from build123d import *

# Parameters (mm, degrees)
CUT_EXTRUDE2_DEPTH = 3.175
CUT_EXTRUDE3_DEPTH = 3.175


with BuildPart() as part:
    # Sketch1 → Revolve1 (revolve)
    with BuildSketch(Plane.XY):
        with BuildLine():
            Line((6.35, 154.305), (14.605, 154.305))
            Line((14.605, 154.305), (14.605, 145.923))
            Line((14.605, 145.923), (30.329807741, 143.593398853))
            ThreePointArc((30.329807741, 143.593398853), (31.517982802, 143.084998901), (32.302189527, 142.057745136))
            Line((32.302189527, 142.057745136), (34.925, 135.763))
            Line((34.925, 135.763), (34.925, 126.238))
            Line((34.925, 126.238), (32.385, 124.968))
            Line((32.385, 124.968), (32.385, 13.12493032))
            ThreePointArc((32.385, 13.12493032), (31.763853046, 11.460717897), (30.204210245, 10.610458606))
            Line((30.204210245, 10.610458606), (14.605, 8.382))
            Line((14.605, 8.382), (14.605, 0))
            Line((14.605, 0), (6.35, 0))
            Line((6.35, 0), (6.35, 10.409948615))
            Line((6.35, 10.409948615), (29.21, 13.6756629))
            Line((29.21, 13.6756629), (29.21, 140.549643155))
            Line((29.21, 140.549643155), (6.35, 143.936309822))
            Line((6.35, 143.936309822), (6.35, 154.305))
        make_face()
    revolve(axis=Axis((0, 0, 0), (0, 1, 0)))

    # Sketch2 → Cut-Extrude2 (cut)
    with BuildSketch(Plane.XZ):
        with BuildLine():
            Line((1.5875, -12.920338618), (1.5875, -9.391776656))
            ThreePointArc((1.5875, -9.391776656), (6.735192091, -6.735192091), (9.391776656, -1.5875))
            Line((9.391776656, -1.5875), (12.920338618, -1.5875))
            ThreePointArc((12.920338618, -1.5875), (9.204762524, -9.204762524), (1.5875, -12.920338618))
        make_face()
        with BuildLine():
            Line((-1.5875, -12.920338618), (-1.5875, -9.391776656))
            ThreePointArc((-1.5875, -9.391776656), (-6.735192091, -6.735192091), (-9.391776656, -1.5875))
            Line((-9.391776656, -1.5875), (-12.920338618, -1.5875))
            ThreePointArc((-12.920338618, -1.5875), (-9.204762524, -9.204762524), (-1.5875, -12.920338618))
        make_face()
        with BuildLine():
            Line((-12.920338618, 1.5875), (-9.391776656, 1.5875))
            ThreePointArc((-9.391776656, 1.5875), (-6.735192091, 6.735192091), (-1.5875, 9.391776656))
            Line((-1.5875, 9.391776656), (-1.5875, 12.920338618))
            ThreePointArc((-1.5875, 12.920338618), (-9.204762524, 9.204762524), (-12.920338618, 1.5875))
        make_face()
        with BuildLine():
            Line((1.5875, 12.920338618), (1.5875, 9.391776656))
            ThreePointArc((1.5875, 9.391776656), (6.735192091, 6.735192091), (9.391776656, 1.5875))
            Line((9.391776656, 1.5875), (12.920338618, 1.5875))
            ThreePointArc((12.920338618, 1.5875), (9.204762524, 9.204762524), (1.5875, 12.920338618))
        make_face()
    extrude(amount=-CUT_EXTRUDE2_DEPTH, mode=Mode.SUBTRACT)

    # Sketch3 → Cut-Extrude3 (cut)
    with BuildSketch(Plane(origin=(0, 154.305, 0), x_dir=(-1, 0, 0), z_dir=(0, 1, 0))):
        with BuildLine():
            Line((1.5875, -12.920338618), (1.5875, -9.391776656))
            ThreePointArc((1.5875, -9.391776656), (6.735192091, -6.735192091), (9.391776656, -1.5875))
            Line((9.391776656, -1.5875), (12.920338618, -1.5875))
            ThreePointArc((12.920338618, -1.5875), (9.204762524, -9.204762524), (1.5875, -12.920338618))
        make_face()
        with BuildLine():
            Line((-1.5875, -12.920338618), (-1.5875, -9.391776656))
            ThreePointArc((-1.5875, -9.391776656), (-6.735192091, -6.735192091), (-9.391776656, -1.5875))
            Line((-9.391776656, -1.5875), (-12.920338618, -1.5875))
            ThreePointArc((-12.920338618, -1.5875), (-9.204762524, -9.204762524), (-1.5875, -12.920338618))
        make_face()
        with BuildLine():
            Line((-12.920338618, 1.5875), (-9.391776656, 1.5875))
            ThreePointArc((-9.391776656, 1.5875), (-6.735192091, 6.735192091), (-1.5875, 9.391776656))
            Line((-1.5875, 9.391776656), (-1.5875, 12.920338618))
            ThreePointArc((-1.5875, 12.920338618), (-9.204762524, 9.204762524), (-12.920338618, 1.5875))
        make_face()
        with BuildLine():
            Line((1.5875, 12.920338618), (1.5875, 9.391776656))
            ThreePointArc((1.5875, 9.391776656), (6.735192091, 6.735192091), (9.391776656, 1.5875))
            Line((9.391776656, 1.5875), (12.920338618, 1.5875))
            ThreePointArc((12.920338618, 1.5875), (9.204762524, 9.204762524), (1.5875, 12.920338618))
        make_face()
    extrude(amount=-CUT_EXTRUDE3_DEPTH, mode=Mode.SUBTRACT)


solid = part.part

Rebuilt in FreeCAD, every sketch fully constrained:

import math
import FreeCAD as App
import Part
import Sketcher
Q = App.Units.Quantity

doc = App.newDocument("Part")
body = doc.addObject("PartDesign::Body", "Body")

# Sketch on XY plane
sketch1 = body.newObject("Sketcher::SketchObject", "Sketch")
sketch1.AttachmentSupport = (doc.getObject("XY_Plane"), [""])
sketch1.MapMode = "FlatFace"
sketch1.addGeometry(Part.LineSegment(App.Vector(14.605, 154.305, 0), App.Vector(6.35, 154.305, 0)), False)
sketch1.addGeometry(Part.LineSegment(App.Vector(6.35, 154.305, 0), App.Vector(6.35, 143.93631, 0)), False)
sketch1.addGeometry(Part.LineSegment(App.Vector(6.35, 143.93631, 0), App.Vector(29.21, 140.549643, 0)), False)
sketch1.addGeometry(Part.LineSegment(App.Vector(29.21, 140.549643, 0), App.Vector(29.21, 13.675663, 0)), False)
sketch1.addGeometry(Part.LineSegment(App.Vector(29.21, 13.675663, 0), App.Vector(6.35, 10.409949, 0)), False)
sketch1.addGeometry(Part.LineSegment(App.Vector(6.35, 10.409949, 0), App.Vector(6.35, 0, 0)), False)
sketch1.addGeometry(Part.LineSegment(App.Vector(6.35, 0, 0), App.Vector(14.605, 0, 0)), False)
sketch1.addGeometry(Part.LineSegment(App.Vector(14.605, 0, 0), App.Vector(14.605, 8.382, 0)), False)
sketch1.addGeometry(Part.LineSegment(App.Vector(14.605, 8.382, 0), App.Vector(30.20421, 10.610459, 0)), False)
sketch1.addGeometry(Part.ArcOfCircle(Part.Circle(App.Vector(29.845, 13.12493, 0), App.Vector(0, 0, 1), 2.54), math.radians(-81.869898), math.radians(0)), False)
sketch1.addGeometry(Part.LineSegment(App.Vector(32.385, 13.12493, 0), App.Vector(32.385, 124.968, 0)), False)
sketch1.addGeometry(Part.LineSegment(App.Vector(32.385, 124.968, 0), App.Vector(34.925, 126.238, 0)), False)
sketch1.addGeometry(Part.LineSegment(App.Vector(34.925, 126.238, 0), App.Vector(34.925, 135.763, 0)), False)
sketch1.addGeometry(Part.LineSegment(App.Vector(34.925, 135.763, 0), App.Vector(32.30219, 142.057745, 0)), False)
sketch1.addGeometry(Part.ArcOfCircle(Part.Circle(App.Vector(29.957574, 141.080822, 0), App.Vector(0, 0, 1), 2.54), math.radians(22.619865), math.radians(81.573031)), False)
sketch1.addGeometry(Part.LineSegment(App.Vector(30.329808, 143.593399, 0), App.Vector(14.605, 145.923, 0)), False)
sketch1.addGeometry(Part.LineSegment(App.Vector(14.605, 145.923, 0), App.Vector(14.605, 154.305, 0)), False)
sketch1.addConstraint(Sketcher.Constraint("Coincident", 0, 2, 1, 1))
sketch1.addConstraint(Sketcher.Constraint("Coincident", 1, 2, 2, 1))
sketch1.addConstraint(Sketcher.Constraint("Coincident", 2, 2, 3, 1))
sketch1.addConstraint(Sketcher.Constraint("Coincident", 3, 2, 4, 1))
sketch1.addConstraint(Sketcher.Constraint("Coincident", 4, 2, 5, 1))
sketch1.addConstraint(Sketcher.Constraint("Coincident", 5, 2, 6, 1))
sketch1.addConstraint(Sketcher.Constraint("Coincident", 6, 2, 7, 1))
sketch1.addConstraint(Sketcher.Constraint("Coincident", 7, 2, 8, 1))
sketch1.addConstraint(Sketcher.Constraint("Tangent", 8, 2, 9, 1))
sketch1.addConstraint(Sketcher.Constraint("Tangent", 9, 2, 10, 1))
sketch1.addConstraint(Sketcher.Constraint("Coincident", 10, 2, 11, 1))
sketch1.addConstraint(Sketcher.Constraint("Coincident", 11, 2, 12, 1))
sketch1.addConstraint(Sketcher.Constraint("Coincident", 12, 2, 13, 1))
sketch1.addConstraint(Sketcher.Constraint("Tangent", 13, 2, 14, 1))
sketch1.addConstraint(Sketcher.Constraint("Tangent", 14, 2, 15, 1))
sketch1.addConstraint(Sketcher.Constraint("Coincident", 15, 2, 16, 1))
sketch1.addConstraint(Sketcher.Constraint("Coincident", 16, 2, 0, 1))
sketch1.addConstraint(Sketcher.Constraint("Horizontal", 0))
sketch1.addConstraint(Sketcher.Constraint("Vertical", 1))
sketch1.addConstraint(Sketcher.Constraint("Vertical", 3))
sketch1.addConstraint(Sketcher.Constraint("Vertical", 5))
sketch1.addConstraint(Sketcher.Constraint("Horizontal", 6))
sketch1.addConstraint(Sketcher.Constraint("Vertical", 7))
sketch1.addConstraint(Sketcher.Constraint("Vertical", 10))
sketch1.addConstraint(Sketcher.Constraint("Vertical", 12))
sketch1.addConstraint(Sketcher.Constraint("Vertical", 16))
sketch1.addConstraint(Sketcher.Constraint("Equal", 9, 14))
sketch1.addConstraint(Sketcher.Constraint("PointOnObject", 5, 2, -1))
sketch1.addConstraint(Sketcher.Constraint("Parallel", 4, 8))
sketch1.addConstraint(Sketcher.Constraint("Parallel", 2, 15))
sketch1.addConstraint(Sketcher.Constraint("Vertical", 1, 2, 4, 2))
sketch1.addConstraint(Sketcher.Constraint("Vertical", 7, 2, 15, 2))
sketch1.addConstraint(Sketcher.Constraint("Equal", 7, 16))
sketch1.addConstraint(Sketcher.Constraint("Radius", 9, Q("0.1 in")))
sketch1.addConstraint(Sketcher.Constraint("DistanceY", 7, 1, 7, 2, Q("0.33 in")))
sketch1.addConstraint(Sketcher.Constraint("DistanceX", 1, 2, 2, 2, Q("0.9 in")))
sketch1.addConstraint(Sketcher.Constraint("DistanceX", 6, 2, 9, 3, Q("0.6 in")))
sketch1.addConstraint(Sketcher.Constraint("DistanceX", 10, 2, 11, 2, Q("0.1 in")))
sketch1.addConstraint(Sketcher.Constraint("DistanceX", 0, 2, 0, 1, Q("0.325 in")))
sketch1.addConstraint(Sketcher.Constraint("DistanceY", 12, 1, 12, 2, Q("0.375 in")))
sketch1.addConstraint(Sketcher.Constraint("DistanceX", -1, 1, 0, 2, Q("0.25 in")))
sketch1.addConstraint(Sketcher.Constraint("DistanceY", -1, 1, 10, 2, Q("4.92 in")))
sketch1.addConstraint(Sketcher.Constraint("DistanceY", -1, 1, 11, 2, Q("4.97 in")))
sketch1.addConstraint(Sketcher.Constraint("DistanceY", -1, 1, 0, 2, Q("6.075 in")))
sketch1.addConstraint(Sketcher.Constraint("DistanceY", 1, 2, 1, 1, Q("10.36869 mm")))
sketch1.addConstraint(Sketcher.Constraint("DistanceY", 3, 2, 3, 1, Q("126.87398 mm")))
sketch1.addConstraint(Sketcher.Constraint("DistanceY", 5, 2, 5, 1, Q("10.409949 mm")))
sketch1.addConstraint(Sketcher.Constraint("DistanceY", 10, 1, 10, 2, Q("111.84307 mm")))
sketch1.addConstraint(Sketcher.Constraint("DistanceY", -1, 1, 14, 2, Q("143.593399 mm")))
revolution = body.newObject("PartDesign::Revolution", "Revolution")
revolution.Profile = sketch1
revolution.ReferenceAxis = (sketch1, ["V_Axis"])
revolution.Angle = 360

# Sketch on XZ plane
sketch2 = body.newObject("Sketcher::SketchObject", "Sketch001")
sketch2.AttachmentSupport = (doc.getObject("XZ_Plane"), [""])
sketch2.MapMode = "FlatFace"
sketch2.addGeometry(Part.LineSegment(App.Vector(1.5875, -9.391777, 0), App.Vector(1.5875, -12.920339, 0)), False)
sketch2.addGeometry(Part.ArcOfCircle(Part.Circle(App.Vector(0, 0, 0), App.Vector(0, 0, 1), 13.0175), math.radians(-82.995274), math.radians(-7.004726)), False)
sketch2.addGeometry(Part.LineSegment(App.Vector(12.920339, -1.5875, 0), App.Vector(9.391777, -1.5875, 0)), False)
sketch2.addGeometry(Part.ArcOfCircle(Part.Circle(App.Vector(0, 0, 0), App.Vector(0, 0, 1), 9.525), math.radians(-80.405932), math.radians(-9.594068)), False)
sketch2.addGeometry(Part.LineSegment(App.Vector(-1.5875, -12.920339, 0), App.Vector(-1.5875, -9.391777, 0)), False)
sketch2.addGeometry(Part.ArcOfCircle(Part.Circle(App.Vector(0, 0, 0), App.Vector(0, 0, 1), 9.525), math.radians(-170.405932), math.radians(-99.594068)), False)
sketch2.addGeometry(Part.LineSegment(App.Vector(-9.391777, -1.5875, 0), App.Vector(-12.920339, -1.5875, 0)), False)
sketch2.addGeometry(Part.ArcOfCircle(Part.Circle(App.Vector(0, 0, 0), App.Vector(0, 0, 1), 13.0175), math.radians(-172.995274), math.radians(-97.004726)), False)
sketch2.addGeometry(Part.LineSegment(App.Vector(-12.920339, 1.5875, 0), App.Vector(-9.391777, 1.5875, 0)), False)
sketch2.addGeometry(Part.ArcOfCircle(Part.Circle(App.Vector(0, 0, 0), App.Vector(0, 0, 1), 9.525), math.radians(99.594068), math.radians(170.405932)), False)
sketch2.addGeometry(Part.LineSegment(App.Vector(-1.5875, 9.391777, 0), App.Vector(-1.5875, 12.920339, 0)), False)
sketch2.addGeometry(Part.ArcOfCircle(Part.Circle(App.Vector(0, 0, 0), App.Vector(0, 0, 1), 13.0175), math.radians(97.004726), math.radians(172.995274)), False)
sketch2.addGeometry(Part.LineSegment(App.Vector(1.5875, 12.920339, 0), App.Vector(1.5875, 9.391777, 0)), False)
sketch2.addGeometry(Part.ArcOfCircle(Part.Circle(App.Vector(0, 0, 0), App.Vector(0, 0, 1), 9.525), math.radians(9.594068), math.radians(80.405932)), False)
sketch2.addGeometry(Part.LineSegment(App.Vector(9.391777, 1.5875, 0), App.Vector(12.920339, 1.5875, 0)), False)
sketch2.addGeometry(Part.ArcOfCircle(Part.Circle(App.Vector(0, 0, 0), App.Vector(0, 0, 1), 13.0175), math.radians(7.004726), math.radians(82.995274)), False)
sketch2.addConstraint(Sketcher.Constraint("Coincident", 0, 2, 1, 1))
sketch2.addConstraint(Sketcher.Constraint("Coincident", 1, 2, 2, 1))
sketch2.addConstraint(Sketcher.Constraint("Coincident", 2, 2, 3, 2))
sketch2.addConstraint(Sketcher.Constraint("Coincident", 3, 1, 0, 1))
sketch2.addConstraint(Sketcher.Constraint("Coincident", 4, 2, 5, 2))
sketch2.addConstraint(Sketcher.Constraint("Coincident", 5, 1, 6, 1))
sketch2.addConstraint(Sketcher.Constraint("Coincident", 6, 2, 7, 1))
sketch2.addConstraint(Sketcher.Constraint("Coincident", 7, 2, 4, 1))
sketch2.addConstraint(Sketcher.Constraint("Coincident", 8, 2, 9, 2))
sketch2.addConstraint(Sketcher.Constraint("Coincident", 9, 1, 10, 1))
sketch2.addConstraint(Sketcher.Constraint("Coincident", 10, 2, 11, 1))
sketch2.addConstraint(Sketcher.Constraint("Coincident", 11, 2, 8, 1))
sketch2.addConstraint(Sketcher.Constraint("Coincident", 12, 2, 13, 2))
sketch2.addConstraint(Sketcher.Constraint("Coincident", 13, 1, 14, 1))
sketch2.addConstraint(Sketcher.Constraint("Coincident", 14, 2, 15, 1))
sketch2.addConstraint(Sketcher.Constraint("Coincident", 15, 2, 12, 1))
sketch2.addConstraint(Sketcher.Constraint("Vertical", 0))
sketch2.addConstraint(Sketcher.Constraint("Horizontal", 2))
sketch2.addConstraint(Sketcher.Constraint("Vertical", 4))
sketch2.addConstraint(Sketcher.Constraint("Horizontal", 6))
sketch2.addConstraint(Sketcher.Constraint("Horizontal", 8))
sketch2.addConstraint(Sketcher.Constraint("Vertical", 10))
sketch2.addConstraint(Sketcher.Constraint("Vertical", 12))
sketch2.addConstraint(Sketcher.Constraint("Horizontal", 14))
sketch2.addConstraint(Sketcher.Constraint("Coincident", 1, 3, -1, 1))
sketch2.addConstraint(Sketcher.Constraint("Coincident", 3, 3, -1, 1))
sketch2.addConstraint(Sketcher.Constraint("Coincident", 5, 3, -1, 1))
sketch2.addConstraint(Sketcher.Constraint("Coincident", 7, 3, -1, 1))
sketch2.addConstraint(Sketcher.Constraint("Coincident", 9, 3, -1, 1))
sketch2.addConstraint(Sketcher.Constraint("Coincident", 11, 3, -1, 1))
sketch2.addConstraint(Sketcher.Constraint("Coincident", 13, 3, -1, 1))
sketch2.addConstraint(Sketcher.Constraint("Coincident", 15, 3, -1, 1))
sketch2.addConstraint(Sketcher.Constraint("Equal", 3, 5))
sketch2.addConstraint(Sketcher.Constraint("Equal", 1, 7))
sketch2.addConstraint(Sketcher.Constraint("Equal", 5, 9))
sketch2.addConstraint(Sketcher.Constraint("Equal", 7, 11))
sketch2.addConstraint(Sketcher.Constraint("Equal", 9, 13))
sketch2.addConstraint(Sketcher.Constraint("Equal", 11, 15))
sketch2.addConstraint(Sketcher.Constraint("Horizontal", 3, 1, 4, 2))
sketch2.addConstraint(Sketcher.Constraint("Horizontal", 2, 2, 5, 1))
sketch2.addConstraint(Sketcher.Constraint("Horizontal", 9, 1, 12, 2))
sketch2.addConstraint(Sketcher.Constraint("Horizontal", 11, 2, 13, 1))
sketch2.addConstraint(Sketcher.Constraint("Vertical", 5, 1, 8, 2))
sketch2.addConstraint(Sketcher.Constraint("Vertical", 7, 2, 9, 1))
sketch2.addConstraint(Sketcher.Constraint("Equal", 14, 0))
sketch2.addConstraint(Sketcher.Constraint("Radius", 3, Q("0.375 in")))
sketch2.addConstraint(Sketcher.Constraint("Radius", 1, Q("0.5125 in")))
sketch2.addConstraint(Sketcher.Constraint("DistanceX", -1, 1, 0, 2, Q("0.0625 in")))
pocket1 = body.newObject("PartDesign::Pocket", "Pocket")
pocket1.Profile = sketch2
pocket1.Length = Q("0.125 in")

# Sketch on XZ plane
sketch3 = body.newObject("Sketcher::SketchObject", "Sketch002")
sketch3.AttachmentSupport = (doc.getObject("XZ_Plane"), [""])
sketch3.MapMode = "FlatFace"
sketch3.AttachmentOffset = App.Placement(App.Vector(0, 0, -6.075 * 25.4), App.Rotation())
sketch3.addGeometry(Part.LineSegment(App.Vector(-1.5875, -9.391777, 0), App.Vector(-1.5875, -12.920339, 0)), False)
sketch3.addGeometry(Part.ArcOfCircle(Part.Circle(App.Vector(0, 0, 0), App.Vector(0, 0, 1), 13.0175), math.radians(-172.995274), math.radians(-97.004726)), False)
sketch3.addGeometry(Part.LineSegment(App.Vector(-12.920339, -1.5875, 0), App.Vector(-9.391777, -1.5875, 0)), False)
sketch3.addGeometry(Part.ArcOfCircle(Part.Circle(App.Vector(0, 0, 0), App.Vector(0, 0, 1), 9.525), math.radians(-170.405932), math.radians(-99.594068)), False)
sketch3.addGeometry(Part.LineSegment(App.Vector(1.5875, -12.920339, 0), App.Vector(1.5875, -9.391777, 0)), False)
sketch3.addGeometry(Part.ArcOfCircle(Part.Circle(App.Vector(0, 0, 0), App.Vector(0, 0, 1), 9.525), math.radians(-80.405932), math.radians(-9.594068)), False)
sketch3.addGeometry(Part.LineSegment(App.Vector(9.391777, -1.5875, 0), App.Vector(12.920339, -1.5875, 0)), False)
sketch3.addGeometry(Part.ArcOfCircle(Part.Circle(App.Vector(0, 0, 0), App.Vector(0, 0, 1), 13.0175), math.radians(-82.995274), math.radians(-7.004726)), False)
sketch3.addGeometry(Part.LineSegment(App.Vector(12.920339, 1.5875, 0), App.Vector(9.391777, 1.5875, 0)), False)
sketch3.addGeometry(Part.ArcOfCircle(Part.Circle(App.Vector(0, 0, 0), App.Vector(0, 0, 1), 9.525), math.radians(9.594068), math.radians(80.405932)), False)
sketch3.addGeometry(Part.LineSegment(App.Vector(1.5875, 9.391777, 0), App.Vector(1.5875, 12.920339, 0)), False)
sketch3.addGeometry(Part.ArcOfCircle(Part.Circle(App.Vector(0, 0, 0), App.Vector(0, 0, 1), 13.0175), math.radians(7.004726), math.radians(82.995274)), False)
sketch3.addGeometry(Part.LineSegment(App.Vector(-1.5875, 12.920339, 0), App.Vector(-1.5875, 9.391777, 0)), False)
sketch3.addGeometry(Part.ArcOfCircle(Part.Circle(App.Vector(0, 0, 0), App.Vector(0, 0, 1), 9.525), math.radians(99.594068), math.radians(170.405932)), False)
sketch3.addGeometry(Part.LineSegment(App.Vector(-9.391777, 1.5875, 0), App.Vector(-12.920339, 1.5875, 0)), False)
sketch3.addGeometry(Part.ArcOfCircle(Part.Circle(App.Vector(0, 0, 0), App.Vector(0, 0, 1), 13.0175), math.radians(97.004726), math.radians(172.995274)), False)
sketch3.addConstraint(Sketcher.Constraint("Coincident", 0, 2, 1, 2))
sketch3.addConstraint(Sketcher.Constraint("Coincident", 1, 1, 2, 1))
sketch3.addConstraint(Sketcher.Constraint("Coincident", 2, 2, 3, 1))
sketch3.addConstraint(Sketcher.Constraint("Coincident", 3, 2, 0, 1))
sketch3.addConstraint(Sketcher.Constraint("Coincident", 4, 2, 5, 1))
sketch3.addConstraint(Sketcher.Constraint("Coincident", 5, 2, 6, 1))
sketch3.addConstraint(Sketcher.Constraint("Coincident", 6, 2, 7, 2))
sketch3.addConstraint(Sketcher.Constraint("Coincident", 7, 1, 4, 1))
sketch3.addConstraint(Sketcher.Constraint("Coincident", 8, 2, 9, 1))
sketch3.addConstraint(Sketcher.Constraint("Coincident", 9, 2, 10, 1))
sketch3.addConstraint(Sketcher.Constraint("Coincident", 10, 2, 11, 2))
sketch3.addConstraint(Sketcher.Constraint("Coincident", 11, 1, 8, 1))
sketch3.addConstraint(Sketcher.Constraint("Coincident", 12, 2, 13, 1))
sketch3.addConstraint(Sketcher.Constraint("Coincident", 13, 2, 14, 1))
sketch3.addConstraint(Sketcher.Constraint("Coincident", 14, 2, 15, 2))
sketch3.addConstraint(Sketcher.Constraint("Coincident", 15, 1, 12, 1))
sketch3.addConstraint(Sketcher.Constraint("Vertical", 0))
sketch3.addConstraint(Sketcher.Constraint("Horizontal", 2))
sketch3.addConstraint(Sketcher.Constraint("Vertical", 4))
sketch3.addConstraint(Sketcher.Constraint("Horizontal", 6))
sketch3.addConstraint(Sketcher.Constraint("Horizontal", 8))
sketch3.addConstraint(Sketcher.Constraint("Vertical", 10))
sketch3.addConstraint(Sketcher.Constraint("Vertical", 12))
sketch3.addConstraint(Sketcher.Constraint("Horizontal", 14))
sketch3.addConstraint(Sketcher.Constraint("Coincident", 1, 3, -1, 1))
sketch3.addConstraint(Sketcher.Constraint("Coincident", 3, 3, -1, 1))
sketch3.addConstraint(Sketcher.Constraint("Coincident", 5, 3, -1, 1))
sketch3.addConstraint(Sketcher.Constraint("Coincident", 7, 3, -1, 1))
sketch3.addConstraint(Sketcher.Constraint("Coincident", 9, 3, -1, 1))
sketch3.addConstraint(Sketcher.Constraint("Coincident", 11, 3, -1, 1))
sketch3.addConstraint(Sketcher.Constraint("Coincident", 13, 3, -1, 1))
sketch3.addConstraint(Sketcher.Constraint("Coincident", 15, 3, -1, 1))
sketch3.addConstraint(Sketcher.Constraint("Equal", 3, 5))
sketch3.addConstraint(Sketcher.Constraint("Equal", 1, 7))
sketch3.addConstraint(Sketcher.Constraint("Equal", 5, 9))
sketch3.addConstraint(Sketcher.Constraint("Equal", 7, 11))
sketch3.addConstraint(Sketcher.Constraint("Equal", 9, 13))
sketch3.addConstraint(Sketcher.Constraint("Equal", 11, 15))
sketch3.addConstraint(Sketcher.Constraint("Horizontal", 3, 2, 4, 2))
sketch3.addConstraint(Sketcher.Constraint("Horizontal", 2, 2, 5, 2))
sketch3.addConstraint(Sketcher.Constraint("Horizontal", 9, 2, 12, 2))
sketch3.addConstraint(Sketcher.Constraint("Horizontal", 11, 1, 13, 2))
sketch3.addConstraint(Sketcher.Constraint("Vertical", 5, 2, 8, 2))
sketch3.addConstraint(Sketcher.Constraint("Vertical", 7, 1, 9, 2))
sketch3.addConstraint(Sketcher.Constraint("Equal", 14, 0))
sketch3.addConstraint(Sketcher.Constraint("Radius", 3, Q("0.375 in")))
sketch3.addConstraint(Sketcher.Constraint("Radius", 1, Q("0.5125 in")))
sketch3.addConstraint(Sketcher.Constraint("DistanceX", 0, 2, -1, 1, Q("0.0625 in")))
pocket2 = body.newObject("PartDesign::Pocket", "Pocket001")
pocket2.Profile = sketch3
pocket2.Length = Q("0.125 in")
pocket2.Reversed = True

doc.recompute()
